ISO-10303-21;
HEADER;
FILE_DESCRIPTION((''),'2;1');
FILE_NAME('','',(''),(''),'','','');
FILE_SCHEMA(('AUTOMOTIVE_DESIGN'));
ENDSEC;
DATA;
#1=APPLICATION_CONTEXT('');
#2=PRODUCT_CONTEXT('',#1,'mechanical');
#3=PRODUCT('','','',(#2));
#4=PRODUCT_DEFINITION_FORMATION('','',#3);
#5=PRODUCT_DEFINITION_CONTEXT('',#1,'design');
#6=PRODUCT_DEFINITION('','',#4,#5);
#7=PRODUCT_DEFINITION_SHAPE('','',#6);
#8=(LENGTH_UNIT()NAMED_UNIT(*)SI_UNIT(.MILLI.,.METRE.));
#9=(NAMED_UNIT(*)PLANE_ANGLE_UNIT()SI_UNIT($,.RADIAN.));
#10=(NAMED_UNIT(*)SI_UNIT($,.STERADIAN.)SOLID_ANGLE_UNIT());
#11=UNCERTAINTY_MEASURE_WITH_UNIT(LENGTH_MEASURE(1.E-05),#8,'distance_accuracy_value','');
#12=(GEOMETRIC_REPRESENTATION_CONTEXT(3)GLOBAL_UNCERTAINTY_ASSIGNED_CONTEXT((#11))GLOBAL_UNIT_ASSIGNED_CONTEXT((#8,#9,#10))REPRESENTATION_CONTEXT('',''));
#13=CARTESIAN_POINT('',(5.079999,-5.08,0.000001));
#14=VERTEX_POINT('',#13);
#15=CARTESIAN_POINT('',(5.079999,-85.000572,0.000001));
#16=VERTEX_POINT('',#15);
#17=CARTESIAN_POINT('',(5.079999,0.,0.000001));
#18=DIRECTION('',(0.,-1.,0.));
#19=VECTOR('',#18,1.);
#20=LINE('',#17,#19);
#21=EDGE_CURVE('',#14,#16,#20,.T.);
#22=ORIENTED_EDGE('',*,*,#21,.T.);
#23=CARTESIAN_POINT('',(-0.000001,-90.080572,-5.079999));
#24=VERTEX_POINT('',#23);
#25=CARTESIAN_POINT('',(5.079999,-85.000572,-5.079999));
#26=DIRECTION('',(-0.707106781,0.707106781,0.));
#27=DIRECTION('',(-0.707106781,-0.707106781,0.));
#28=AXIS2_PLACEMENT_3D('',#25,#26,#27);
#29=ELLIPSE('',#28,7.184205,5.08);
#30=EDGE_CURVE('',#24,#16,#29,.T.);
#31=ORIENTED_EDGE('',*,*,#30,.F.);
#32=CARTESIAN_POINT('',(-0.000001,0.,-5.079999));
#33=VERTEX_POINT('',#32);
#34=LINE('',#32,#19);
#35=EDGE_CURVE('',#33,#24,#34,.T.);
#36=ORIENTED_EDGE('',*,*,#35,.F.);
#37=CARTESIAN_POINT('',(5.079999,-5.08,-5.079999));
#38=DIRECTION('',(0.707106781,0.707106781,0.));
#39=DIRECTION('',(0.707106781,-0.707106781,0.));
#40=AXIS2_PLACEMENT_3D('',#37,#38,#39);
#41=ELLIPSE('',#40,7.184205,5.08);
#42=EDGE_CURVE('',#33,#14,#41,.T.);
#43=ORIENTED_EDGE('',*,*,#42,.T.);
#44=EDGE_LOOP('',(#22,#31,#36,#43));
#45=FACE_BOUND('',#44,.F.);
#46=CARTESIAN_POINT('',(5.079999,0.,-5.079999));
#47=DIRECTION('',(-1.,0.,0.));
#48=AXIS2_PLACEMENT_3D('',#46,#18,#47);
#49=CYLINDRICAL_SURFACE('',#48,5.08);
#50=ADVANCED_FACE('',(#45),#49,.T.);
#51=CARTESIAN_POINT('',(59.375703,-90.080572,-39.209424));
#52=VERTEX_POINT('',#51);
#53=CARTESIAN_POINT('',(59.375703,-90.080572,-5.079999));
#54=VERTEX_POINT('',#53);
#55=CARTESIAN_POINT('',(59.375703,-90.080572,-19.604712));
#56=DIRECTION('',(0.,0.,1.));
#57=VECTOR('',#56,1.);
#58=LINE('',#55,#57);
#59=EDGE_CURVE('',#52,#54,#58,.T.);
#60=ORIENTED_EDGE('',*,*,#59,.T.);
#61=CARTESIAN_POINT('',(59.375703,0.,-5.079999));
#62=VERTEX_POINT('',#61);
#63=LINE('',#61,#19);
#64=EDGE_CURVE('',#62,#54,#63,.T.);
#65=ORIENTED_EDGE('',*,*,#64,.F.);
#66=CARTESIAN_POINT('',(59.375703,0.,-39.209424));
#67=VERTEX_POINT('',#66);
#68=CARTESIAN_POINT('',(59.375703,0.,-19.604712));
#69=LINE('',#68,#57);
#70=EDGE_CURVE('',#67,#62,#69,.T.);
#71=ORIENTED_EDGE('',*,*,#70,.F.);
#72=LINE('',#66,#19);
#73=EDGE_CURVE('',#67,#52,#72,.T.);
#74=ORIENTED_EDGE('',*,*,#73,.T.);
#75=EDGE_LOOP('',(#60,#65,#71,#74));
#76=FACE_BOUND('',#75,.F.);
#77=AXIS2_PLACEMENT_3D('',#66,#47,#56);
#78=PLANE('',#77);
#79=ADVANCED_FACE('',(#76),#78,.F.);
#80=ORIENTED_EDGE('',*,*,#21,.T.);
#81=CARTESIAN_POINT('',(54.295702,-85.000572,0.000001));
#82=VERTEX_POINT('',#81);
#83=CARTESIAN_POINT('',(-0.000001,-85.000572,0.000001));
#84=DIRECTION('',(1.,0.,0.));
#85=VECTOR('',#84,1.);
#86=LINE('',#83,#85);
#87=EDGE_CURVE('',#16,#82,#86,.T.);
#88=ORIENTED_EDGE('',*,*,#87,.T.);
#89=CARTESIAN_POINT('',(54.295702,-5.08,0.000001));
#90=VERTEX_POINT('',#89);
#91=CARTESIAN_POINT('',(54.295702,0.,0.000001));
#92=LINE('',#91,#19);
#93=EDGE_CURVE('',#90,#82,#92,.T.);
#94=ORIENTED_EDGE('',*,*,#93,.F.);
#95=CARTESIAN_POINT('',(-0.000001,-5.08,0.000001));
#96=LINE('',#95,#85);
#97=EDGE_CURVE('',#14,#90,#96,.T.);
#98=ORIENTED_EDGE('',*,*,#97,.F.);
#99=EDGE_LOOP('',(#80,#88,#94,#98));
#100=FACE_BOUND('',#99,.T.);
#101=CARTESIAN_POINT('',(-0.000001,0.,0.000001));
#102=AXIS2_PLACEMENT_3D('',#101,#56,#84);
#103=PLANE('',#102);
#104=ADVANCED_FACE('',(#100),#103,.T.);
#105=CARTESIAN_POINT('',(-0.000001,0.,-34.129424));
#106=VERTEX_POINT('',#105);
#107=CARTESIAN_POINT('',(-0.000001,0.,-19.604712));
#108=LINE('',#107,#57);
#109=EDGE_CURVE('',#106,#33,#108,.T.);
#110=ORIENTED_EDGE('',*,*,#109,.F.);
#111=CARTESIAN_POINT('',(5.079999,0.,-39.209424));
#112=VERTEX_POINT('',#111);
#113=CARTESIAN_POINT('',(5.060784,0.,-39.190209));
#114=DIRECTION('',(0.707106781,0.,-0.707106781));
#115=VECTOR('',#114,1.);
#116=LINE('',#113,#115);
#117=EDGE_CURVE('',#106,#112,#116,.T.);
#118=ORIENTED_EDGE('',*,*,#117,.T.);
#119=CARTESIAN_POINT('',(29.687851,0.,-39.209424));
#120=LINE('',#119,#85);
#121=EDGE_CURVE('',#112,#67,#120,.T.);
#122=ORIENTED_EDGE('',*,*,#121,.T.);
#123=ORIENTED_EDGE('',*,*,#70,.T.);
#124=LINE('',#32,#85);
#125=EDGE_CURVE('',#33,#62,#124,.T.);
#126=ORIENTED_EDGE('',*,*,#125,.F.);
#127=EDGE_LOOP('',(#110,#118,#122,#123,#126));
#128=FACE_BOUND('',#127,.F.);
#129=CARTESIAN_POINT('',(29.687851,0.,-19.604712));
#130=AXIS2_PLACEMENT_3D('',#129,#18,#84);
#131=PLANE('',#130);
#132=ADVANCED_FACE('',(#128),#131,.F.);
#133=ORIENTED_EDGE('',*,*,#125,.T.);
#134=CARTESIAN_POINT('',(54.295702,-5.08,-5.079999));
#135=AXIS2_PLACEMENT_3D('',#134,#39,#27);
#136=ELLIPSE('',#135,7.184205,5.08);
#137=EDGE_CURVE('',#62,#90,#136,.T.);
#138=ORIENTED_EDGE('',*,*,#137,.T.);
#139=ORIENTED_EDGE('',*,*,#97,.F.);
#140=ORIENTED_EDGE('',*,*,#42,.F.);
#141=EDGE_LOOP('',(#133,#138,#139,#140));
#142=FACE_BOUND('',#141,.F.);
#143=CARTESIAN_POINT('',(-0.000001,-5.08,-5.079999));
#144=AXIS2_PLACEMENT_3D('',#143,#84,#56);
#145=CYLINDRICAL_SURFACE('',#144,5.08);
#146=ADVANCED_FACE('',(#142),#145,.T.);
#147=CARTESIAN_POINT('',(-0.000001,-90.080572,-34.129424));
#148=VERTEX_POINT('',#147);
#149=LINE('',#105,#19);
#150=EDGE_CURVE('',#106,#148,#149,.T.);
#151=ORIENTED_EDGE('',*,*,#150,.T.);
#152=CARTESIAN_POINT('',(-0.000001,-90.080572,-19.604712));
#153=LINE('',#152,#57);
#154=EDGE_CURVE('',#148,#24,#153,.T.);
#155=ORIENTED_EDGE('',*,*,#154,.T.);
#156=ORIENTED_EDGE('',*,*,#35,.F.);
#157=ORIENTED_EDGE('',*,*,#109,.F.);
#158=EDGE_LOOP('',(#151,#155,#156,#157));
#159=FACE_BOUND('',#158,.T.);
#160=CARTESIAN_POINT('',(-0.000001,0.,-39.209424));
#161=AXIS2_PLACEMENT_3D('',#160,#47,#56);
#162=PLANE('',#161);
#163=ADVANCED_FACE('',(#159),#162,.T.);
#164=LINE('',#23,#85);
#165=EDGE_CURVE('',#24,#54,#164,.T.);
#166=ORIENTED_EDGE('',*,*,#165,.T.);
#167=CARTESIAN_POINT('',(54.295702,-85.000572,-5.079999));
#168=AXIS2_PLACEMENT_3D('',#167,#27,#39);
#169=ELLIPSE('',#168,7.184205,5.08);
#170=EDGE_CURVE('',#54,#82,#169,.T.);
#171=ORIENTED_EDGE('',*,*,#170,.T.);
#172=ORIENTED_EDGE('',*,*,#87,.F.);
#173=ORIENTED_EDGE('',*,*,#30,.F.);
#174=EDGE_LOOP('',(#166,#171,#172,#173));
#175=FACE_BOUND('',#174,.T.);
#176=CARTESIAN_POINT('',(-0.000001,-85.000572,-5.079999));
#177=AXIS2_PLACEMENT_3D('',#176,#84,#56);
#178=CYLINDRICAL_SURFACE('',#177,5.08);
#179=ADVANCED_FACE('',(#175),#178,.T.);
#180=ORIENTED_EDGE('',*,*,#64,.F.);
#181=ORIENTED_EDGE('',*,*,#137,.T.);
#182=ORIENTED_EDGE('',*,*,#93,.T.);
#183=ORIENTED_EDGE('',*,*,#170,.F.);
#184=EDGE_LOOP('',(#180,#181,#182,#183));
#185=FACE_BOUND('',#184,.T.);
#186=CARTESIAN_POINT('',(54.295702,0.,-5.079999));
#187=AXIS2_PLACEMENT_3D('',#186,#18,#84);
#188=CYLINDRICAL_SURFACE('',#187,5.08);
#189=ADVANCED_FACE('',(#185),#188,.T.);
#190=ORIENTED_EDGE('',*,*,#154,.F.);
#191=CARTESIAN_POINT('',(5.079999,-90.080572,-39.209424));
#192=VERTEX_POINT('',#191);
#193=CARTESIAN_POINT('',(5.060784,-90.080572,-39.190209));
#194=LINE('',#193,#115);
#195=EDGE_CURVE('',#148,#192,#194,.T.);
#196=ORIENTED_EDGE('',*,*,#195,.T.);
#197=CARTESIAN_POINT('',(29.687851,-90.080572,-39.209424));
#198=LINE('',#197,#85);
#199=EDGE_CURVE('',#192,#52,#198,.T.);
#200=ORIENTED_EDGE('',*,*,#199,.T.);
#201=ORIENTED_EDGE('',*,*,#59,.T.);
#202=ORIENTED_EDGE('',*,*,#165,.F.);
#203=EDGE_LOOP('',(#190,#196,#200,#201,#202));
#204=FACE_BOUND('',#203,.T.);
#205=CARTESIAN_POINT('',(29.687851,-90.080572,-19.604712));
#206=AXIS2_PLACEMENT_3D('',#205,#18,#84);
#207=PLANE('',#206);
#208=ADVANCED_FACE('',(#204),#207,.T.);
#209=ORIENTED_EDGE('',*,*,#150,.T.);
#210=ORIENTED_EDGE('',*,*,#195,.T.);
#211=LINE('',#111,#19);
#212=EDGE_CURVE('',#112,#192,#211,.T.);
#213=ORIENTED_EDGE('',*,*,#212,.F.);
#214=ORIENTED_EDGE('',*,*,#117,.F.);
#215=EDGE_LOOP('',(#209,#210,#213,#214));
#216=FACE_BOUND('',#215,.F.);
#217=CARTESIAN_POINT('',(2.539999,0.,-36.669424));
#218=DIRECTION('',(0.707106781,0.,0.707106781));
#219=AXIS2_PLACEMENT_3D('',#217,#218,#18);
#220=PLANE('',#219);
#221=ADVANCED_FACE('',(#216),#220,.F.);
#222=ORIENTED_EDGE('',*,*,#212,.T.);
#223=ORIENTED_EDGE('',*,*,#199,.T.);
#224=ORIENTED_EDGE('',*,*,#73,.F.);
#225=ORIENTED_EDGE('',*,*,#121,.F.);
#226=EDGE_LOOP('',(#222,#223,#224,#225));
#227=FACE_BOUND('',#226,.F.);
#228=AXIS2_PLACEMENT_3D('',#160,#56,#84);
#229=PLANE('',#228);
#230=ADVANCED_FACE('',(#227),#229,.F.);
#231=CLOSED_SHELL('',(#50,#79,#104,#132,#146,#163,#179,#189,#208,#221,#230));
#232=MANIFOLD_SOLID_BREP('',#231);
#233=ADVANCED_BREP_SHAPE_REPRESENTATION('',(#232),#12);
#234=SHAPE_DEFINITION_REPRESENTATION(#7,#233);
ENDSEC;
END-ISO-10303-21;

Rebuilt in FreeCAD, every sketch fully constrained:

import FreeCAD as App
import Part
import Sketcher
Q = App.Units.Quantity


def edges_at(feature, points):
    """Names of the edges that pass closest to the given points."""
    edges = feature.Shape.Edges
    near = lambda p: min(range(len(edges)), key=lambda i: edges[i].distToShape(Part.Vertex(*p))[0])
    return sorted({f"Edge{near(p) + 1}" for p in points})


def add_polygon(sketch, points):
    """Adds a closed chain of lines whose ends are joined by coincident constraints."""
    first, n = sketch.GeometryCount, len(points)
    for a, b in zip(points, points[1:] + points[:1]):
        sketch.addGeometry(Part.LineSegment(App.Vector(*a, 0), App.Vector(*b, 0)), False)
    for i in range(n):
        sketch.addConstraint(Sketcher.Constraint("Coincident", first + i, 2, first + (i + 1) % n, 1))

doc = App.newDocument("Part")
body = doc.addObject("PartDesign::Body", "Body")

# Sketch on XZ plane
sketch1 = body.newObject("Sketcher::SketchObject", "Sketch")
sketch1.AttachmentSupport = (doc.getObject("XZ_Plane"), [""])
sketch1.MapMode = "FlatFace"
add_polygon(sketch1, [(0, 0), (0, -39.209424), (59.375703, -39.209424), (59.375703, 0)])  # lines 0-3
sketch1.addConstraint([
    Sketcher.Constraint("Vertical", 0),
    Sketcher.Constraint("Horizontal", 1),
    Sketcher.Constraint("Vertical", 2),
    Sketcher.Constraint("Horizontal", 3),
    Sketcher.Constraint("Coincident", 3, 2, -1, 1),
    Sketcher.Constraint("DistanceX", 1, 1, 1, 2, 59.375703),
    Sketcher.Constraint("DistanceY", 0, 2, 0, 1, 39.209425),
])
pad1 = body.newObject("PartDesign::Pad", "Pad")
pad1.Profile = sketch1
pad1.Length = 90.080572
doc.recompute()

fillet = body.newObject("PartDesign::Fillet", "Fillet")
fillet.Base = (pad1, edges_at(pad1, [
    (59.376, -45.04, 0),
    (0, -45.04, 0),
    (29.688, 0, 0),
    (29.688, -90.081, 0),
]))
fillet.Radius = Q("0.2 in")
doc.recompute()

chamfer = body.newObject("PartDesign::Chamfer", "Chamfer")
chamfer.Base = (fillet, edges_at(fillet, [(0, -45.04, -39.209)]))
chamfer.Size = Q("0.2 in")

doc.recompute()
